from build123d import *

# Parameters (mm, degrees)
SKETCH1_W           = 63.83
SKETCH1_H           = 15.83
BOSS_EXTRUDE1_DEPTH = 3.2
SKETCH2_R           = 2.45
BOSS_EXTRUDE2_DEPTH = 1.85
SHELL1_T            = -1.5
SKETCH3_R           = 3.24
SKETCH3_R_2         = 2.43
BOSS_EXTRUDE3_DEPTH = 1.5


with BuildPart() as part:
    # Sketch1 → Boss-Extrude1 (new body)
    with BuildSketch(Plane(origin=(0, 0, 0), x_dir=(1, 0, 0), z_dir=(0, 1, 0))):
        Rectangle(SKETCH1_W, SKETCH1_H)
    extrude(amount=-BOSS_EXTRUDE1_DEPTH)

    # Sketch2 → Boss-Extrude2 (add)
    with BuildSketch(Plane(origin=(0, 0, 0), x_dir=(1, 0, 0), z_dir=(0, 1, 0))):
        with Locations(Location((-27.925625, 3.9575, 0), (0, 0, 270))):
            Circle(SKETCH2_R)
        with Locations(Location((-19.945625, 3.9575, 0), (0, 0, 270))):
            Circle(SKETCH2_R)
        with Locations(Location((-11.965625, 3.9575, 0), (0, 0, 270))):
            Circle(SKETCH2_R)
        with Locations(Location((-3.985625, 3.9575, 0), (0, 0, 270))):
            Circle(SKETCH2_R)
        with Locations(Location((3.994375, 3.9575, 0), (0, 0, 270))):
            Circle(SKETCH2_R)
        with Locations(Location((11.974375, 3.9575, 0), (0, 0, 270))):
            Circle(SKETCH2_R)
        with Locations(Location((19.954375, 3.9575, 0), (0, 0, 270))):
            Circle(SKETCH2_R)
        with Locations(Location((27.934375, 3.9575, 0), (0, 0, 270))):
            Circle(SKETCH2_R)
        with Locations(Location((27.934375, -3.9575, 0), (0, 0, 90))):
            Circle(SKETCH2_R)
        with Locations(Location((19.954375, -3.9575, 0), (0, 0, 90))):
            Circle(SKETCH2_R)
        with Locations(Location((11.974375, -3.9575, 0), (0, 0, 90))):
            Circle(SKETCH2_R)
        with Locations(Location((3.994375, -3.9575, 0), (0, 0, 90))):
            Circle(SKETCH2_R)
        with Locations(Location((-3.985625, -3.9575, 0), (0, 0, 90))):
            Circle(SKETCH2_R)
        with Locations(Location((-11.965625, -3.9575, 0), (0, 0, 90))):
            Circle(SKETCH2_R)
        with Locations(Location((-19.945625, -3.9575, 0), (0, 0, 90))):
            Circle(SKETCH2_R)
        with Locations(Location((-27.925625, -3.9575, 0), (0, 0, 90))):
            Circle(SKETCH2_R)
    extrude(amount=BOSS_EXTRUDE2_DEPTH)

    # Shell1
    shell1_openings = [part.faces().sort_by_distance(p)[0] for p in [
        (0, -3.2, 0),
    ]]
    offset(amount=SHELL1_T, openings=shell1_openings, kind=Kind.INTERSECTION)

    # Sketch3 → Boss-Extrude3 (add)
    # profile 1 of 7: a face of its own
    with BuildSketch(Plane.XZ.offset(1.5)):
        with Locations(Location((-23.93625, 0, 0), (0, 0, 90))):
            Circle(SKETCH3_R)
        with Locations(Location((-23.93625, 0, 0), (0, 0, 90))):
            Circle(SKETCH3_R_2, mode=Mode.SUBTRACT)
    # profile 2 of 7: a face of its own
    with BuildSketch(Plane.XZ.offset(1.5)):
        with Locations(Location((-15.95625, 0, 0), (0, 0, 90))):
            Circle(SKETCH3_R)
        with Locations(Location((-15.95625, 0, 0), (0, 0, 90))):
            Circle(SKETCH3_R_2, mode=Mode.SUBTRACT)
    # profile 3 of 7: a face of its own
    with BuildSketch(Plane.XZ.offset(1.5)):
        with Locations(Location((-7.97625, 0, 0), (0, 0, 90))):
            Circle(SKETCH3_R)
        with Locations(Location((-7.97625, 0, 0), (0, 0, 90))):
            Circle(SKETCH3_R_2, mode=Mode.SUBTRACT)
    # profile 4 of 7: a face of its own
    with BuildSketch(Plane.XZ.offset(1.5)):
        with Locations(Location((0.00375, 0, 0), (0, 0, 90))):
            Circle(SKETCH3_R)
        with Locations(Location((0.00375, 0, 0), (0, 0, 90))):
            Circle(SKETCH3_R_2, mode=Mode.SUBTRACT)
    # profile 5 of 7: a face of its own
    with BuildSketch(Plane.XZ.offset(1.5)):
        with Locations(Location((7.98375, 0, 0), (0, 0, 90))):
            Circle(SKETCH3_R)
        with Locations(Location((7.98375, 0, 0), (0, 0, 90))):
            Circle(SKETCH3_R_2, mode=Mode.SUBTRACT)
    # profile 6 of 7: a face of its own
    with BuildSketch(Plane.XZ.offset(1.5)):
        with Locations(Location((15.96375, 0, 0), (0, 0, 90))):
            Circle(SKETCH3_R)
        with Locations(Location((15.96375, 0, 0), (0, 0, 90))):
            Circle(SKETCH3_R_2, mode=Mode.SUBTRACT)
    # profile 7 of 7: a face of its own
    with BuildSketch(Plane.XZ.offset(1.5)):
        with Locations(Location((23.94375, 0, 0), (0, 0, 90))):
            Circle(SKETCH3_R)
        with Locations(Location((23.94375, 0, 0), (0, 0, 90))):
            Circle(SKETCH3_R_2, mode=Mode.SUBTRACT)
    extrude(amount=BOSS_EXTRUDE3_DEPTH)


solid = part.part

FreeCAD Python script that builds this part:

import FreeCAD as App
import Part
import Sketcher
Q = App.Units.Quantity


def faces_at(feature, points):
    """Names of the faces that lie closest to the given points."""
    faces = feature.Shape.Faces
    near = lambda p: min(range(len(faces)), key=lambda i: faces[i].distToShape(Part.Vertex(*p))[0])
    return sorted({f"Face{near(p) + 1}" for p in points})

doc = App.newDocument("Part")
body = doc.addObject("PartDesign::Body", "Body")

sketch1 = body.newObject("Sketcher::SketchObject", "Sketch")
sketch1.AttachmentSupport = (doc.getObject("XZ_Plane"), [""])
sketch1.MapMode = "FlatFace"
sketch1.addGeometry([
    Part.LineSegment(App.Vector(-32, -8, 0), App.Vector(-32, 8, 0)),
    Part.LineSegment(App.Vector(-32, 8, 0), App.Vector(32, 8, 0)),
    Part.LineSegment(App.Vector(32, 8, 0), App.Vector(32, -8, 0)),
    Part.LineSegment(App.Vector(32, -8, 0), App.Vector(-32, -8, 0)),
], False)
sketch1.addConstraint([
    Sketcher.Constraint("Coincident", 0, 2, 1, 1),
    Sketcher.Constraint("Coincident", 1, 2, 2, 1),
    Sketcher.Constraint("Coincident", 2, 2, 3, 1),
    Sketcher.Constraint("Coincident", 3, 2, 0, 1),
    Sketcher.Constraint("Vertical", 0),
    Sketcher.Constraint("Horizontal", 1),
    Sketcher.Constraint("Vertical", 2),
    Sketcher.Constraint("Horizontal", 3),
    Sketcher.Constraint("Symmetric", 0, 2, 2, 2, -1, 1),
    Sketcher.Constraint("DistanceX", 1, 1, 1, 2, Q("63.83 mm")),
    Sketcher.Constraint("DistanceY", 0, 1, 0, 2, Q("15.83 mm")),
])
pad1 = body.newObject("PartDesign::Pad", "Pad")
pad1.Profile = sketch1
pad1.Length = 3.2

sketch2 = body.newObject("Sketcher::SketchObject", "Sketch001")
sketch2.AttachmentSupport = (doc.getObject("XZ_Plane"), [""])
sketch2.MapMode = "FlatFace"
sketch2.addGeometry([
    Part.Circle(App.Vector(-27.9, -4, 0), App.Vector(0, 0, 1), 2.5),
    Part.Circle(App.Vector(-19.9, -4, 0), App.Vector(0, 0, 1), 2.5),
    Part.Circle(App.Vector(-12, -4, 0), App.Vector(0, 0, 1), 2.5),
    Part.Circle(App.Vector(-4, -4, 0), App.Vector(0, 0, 1), 2.5),
    Part.Circle(App.Vector(4, -4, 0), App.Vector(0, 0, 1), 2.5),
    Part.Circle(App.Vector(12, -4, 0), App.Vector(0, 0, 1), 2.5),
    Part.Circle(App.Vector(20, -4, 0), App.Vector(0, 0, 1), 2.5),
    Part.Circle(App.Vector(27.9, -4, 0), App.Vector(0, 0, 1), 2.5),
    Part.Circle(App.Vector(27.9, 4, 0), App.Vector(0, 0, 1), 2.5),
    Part.Circle(App.Vector(20, 4, 0), App.Vector(0, 0, 1), 2.5),
    Part.Circle(App.Vector(12, 4, 0), App.Vector(0, 0, 1), 2.5),
    Part.Circle(App.Vector(4, 4, 0), App.Vector(0, 0, 1), 2.5),
    Part.Circle(App.Vector(-4, 4, 0), App.Vector(0, 0, 1), 2.5),
    Part.Circle(App.Vector(-12, 4, 0), App.Vector(0, 0, 1), 2.5),
    Part.Circle(App.Vector(-19.9, 4, 0), App.Vector(0, 0, 1), 2.5),
    Part.Circle(App.Vector(-27.9, 4, 0), App.Vector(0, 0, 1), 2.5),
], False)
sketch2.addConstraint([
    Sketcher.Constraint("Equal", 0, 1),
    Sketcher.Constraint("Equal", 1, 2),
    Sketcher.Constraint("Equal", 2, 3),
    Sketcher.Constraint("Equal", 3, 4),
    Sketcher.Constraint("Equal", 4, 5),
    Sketcher.Constraint("Equal", 5, 6),
    Sketcher.Constraint("Equal", 6, 7),
    Sketcher.Constraint("Equal", 7, 8),
    Sketcher.Constraint("Equal", 8, 9),
    Sketcher.Constraint("Equal", 9, 10),
    Sketcher.Constraint("Equal", 10, 11),
    Sketcher.Constraint("Equal", 11, 12),
    Sketcher.Constraint("Equal", 12, 13),
    Sketcher.Constraint("Equal", 13, 14),
    Sketcher.Constraint("Equal", 14, 15),
    Sketcher.Constraint("Symmetric", 7, 3, 8, 3, -1),
    Sketcher.Constraint("Symmetric", 6, 3, 9, 3, -1),
    Sketcher.Constraint("Symmetric", 5, 3, 10, 3, -1),
    Sketcher.Constraint("Symmetric", 4, 3, 11, 3, -1),
    Sketcher.Constraint("Symmetric", 3, 3, 12, 3, -1),
    Sketcher.Constraint("Symmetric", 2, 3, 13, 3, -1),
    Sketcher.Constraint("Symmetric", 1, 3, 14, 3, -1),
    Sketcher.Constraint("Symmetric", 0, 3, 15, 3, -1),
    Sketcher.Constraint("Horizontal", 0, 3, 1, 3),
    Sketcher.Constraint("Horizontal", 1, 3, 2, 3),
    Sketcher.Constraint("Horizontal", 2, 3, 3, 3),
    Sketcher.Constraint("Horizontal", 3, 3, 4, 3),
    Sketcher.Constraint("Horizontal", 4, 3, 5, 3),
    Sketcher.Constraint("Horizontal", 5, 3, 6, 3),
    Sketcher.Constraint("Horizontal", 6, 3, 7, 3),
    Sketcher.Constraint("Diameter", 0, Q("4.9 mm")),
    Sketcher.Constraint("DistanceX", 0, 3, 5, 3, Q("39.9 mm")),
    Sketcher.Constraint("DistanceX", 1, 3, 6, 3, Q("39.9 mm")),
    Sketcher.Constraint("DistanceX", 2, 3, 7, 3, Q("39.9 mm")),
    Sketcher.Constraint("DistanceX", 0, 3, 1, 3, Q("7.98 mm")),
    Sketcher.Constraint("DistanceX", 1, 3, 2, 3, Q("7.98 mm")),
    Sketcher.Constraint("DistanceX", 2, 3, 3, 3, Q("7.98 mm")),
    Sketcher.Constraint("DistanceX", 3, 3, 4, 3, Q("7.98 mm")),
    Sketcher.Constraint("DistanceY", 7, 3, 8, 3, Q("7.915 mm")),
    Sketcher.Constraint("DistanceX", 0, 3, -1, 1, Q("27.925625 mm")),
])
pad2 = body.newObject("PartDesign::Pad", "Pad001")
pad2.Profile = sketch2
pad2.Length = 1.85
pad2.Reversed = True
doc.recompute()

thickness = body.newObject("PartDesign::Thickness", "Thickness")
thickness.Base = (pad2, faces_at(pad2, [(0, -3.2, 0)]))
thickness.Value = 1.5
thickness.Reversed = True
thickness.Join = "Intersection"

sketch3 = body.newObject("Sketcher::SketchObject", "Sketch002")
sketch3.AttachmentSupport = (doc.getObject("XZ_Plane"), [""])
sketch3.MapMode = "FlatFace"
sketch3.AttachmentOffset = App.Placement(App.Vector(0, 0, 1.5), App.Rotation())
sketch3.addGeometry([
    Part.Circle(App.Vector(-23.9, 0, 0), App.Vector(0, 0, 1), 3.2),
    Part.Circle(App.Vector(-23.9, 0, 0), App.Vector(0, 0, 1), 2.4),
    Part.Circle(App.Vector(-16, 0, 0), App.Vector(0, 0, 1), 3.2),
    Part.Circle(App.Vector(-16, 0, 0), App.Vector(0, 0, 1), 2.4),
    Part.Circle(App.Vector(-8, 0, 0), App.Vector(0, 0, 1), 3.2),
    Part.Circle(App.Vector(-8, 0, 0), App.Vector(0, 0, 1), 2.4),
    Part.Circle(App.Vector(0, 0, 0), App.Vector(0, 0, 1), 3.2),
    Part.Circle(App.Vector(0, 0, 0), App.Vector(0, 0, 1), 2.4),
    Part.Circle(App.Vector(8, 0, 0), App.Vector(0, 0, 1), 3.2),
    Part.Circle(App.Vector(8, 0, 0), App.Vector(0, 0, 1), 2.4),
    Part.Circle(App.Vector(16, 0, 0), App.Vector(0, 0, 1), 3.2),
    Part.Circle(App.Vector(16, 0, 0), App.Vector(0, 0, 1), 2.4),
    Part.Circle(App.Vector(23.9, 0, 0), App.Vector(0, 0, 1), 3.2),
    Part.Circle(App.Vector(23.9, 0, 0), App.Vector(0, 0, 1), 2.4),
], False)
sketch3.addConstraint([
    Sketcher.Constraint("Coincident", 1, 3, 0, 3),
    Sketcher.Constraint("Coincident", 3, 3, 2, 3),
    Sketcher.Constraint("Coincident", 5, 3, 4, 3),
    Sketcher.Constraint("Coincident", 7, 3, 6, 3),
    Sketcher.Constraint("Coincident", 9, 3, 8, 3),
    Sketcher.Constraint("Coincident", 11, 3, 10, 3),
    Sketcher.Constraint("Coincident", 13, 3, 12, 3),
    Sketcher.Constraint("Equal", 0, 2),
    Sketcher.Constraint("Equal", 1, 3),
    Sketcher.Constraint("Equal", 2, 4),
    Sketcher.Constraint("Equal", 3, 5),
    Sketcher.Constraint("Equal", 4, 6),
    Sketcher.Constraint("Equal", 5, 7),
    Sketcher.Constraint("Equal", 6, 8),
    Sketcher.Constraint("Equal", 7, 9),
    Sketcher.Constraint("Equal", 8, 10),
    Sketcher.Constraint("Equal", 9, 11),
    Sketcher.Constraint("Equal", 10, 12),
    Sketcher.Constraint("Equal", 11, 13),
    Sketcher.Constraint("PointOnObject", 0, 3, -1),
    Sketcher.Constraint("PointOnObject", 2, 3, -1),
    Sketcher.Constraint("PointOnObject", 4, 3, -1),
    Sketcher.Constraint("PointOnObject", 6, 3, -1),
    Sketcher.Constraint("PointOnObject", 8, 3, -1),
    Sketcher.Constraint("PointOnObject", 10, 3, -1),
    Sketcher.Constraint("PointOnObject", 12, 3, -1),
    Sketcher.Constraint("Diameter", 0, Q("6.48 mm")),
    Sketcher.Constraint("Diameter", 1, Q("4.86 mm")),
    Sketcher.Constraint("DistanceX", 0, 3, 2, 3, Q("7.98 mm")),
    Sketcher.Constraint("DistanceX", 2, 3, 4, 3, Q("7.98 mm")),
    Sketcher.Constraint("DistanceX", 4, 3, 6, 3, Q("7.98 mm")),
    Sketcher.Constraint("DistanceX", 6, 3, 8, 3, Q("7.98 mm")),
    Sketcher.Constraint("DistanceX", 8, 3, 10, 3, Q("7.98 mm")),
    Sketcher.Constraint("DistanceX", 10, 3, 12, 3, Q("7.98 mm")),
    Sketcher.Constraint("DistanceX", 0, 3, -1, 1, Q("23.93625 mm")),
])
pad3 = body.newObject("PartDesign::Pad", "Pad002")
pad3.Profile = sketch3
pad3.Length = 1.5

doc.recompute()
